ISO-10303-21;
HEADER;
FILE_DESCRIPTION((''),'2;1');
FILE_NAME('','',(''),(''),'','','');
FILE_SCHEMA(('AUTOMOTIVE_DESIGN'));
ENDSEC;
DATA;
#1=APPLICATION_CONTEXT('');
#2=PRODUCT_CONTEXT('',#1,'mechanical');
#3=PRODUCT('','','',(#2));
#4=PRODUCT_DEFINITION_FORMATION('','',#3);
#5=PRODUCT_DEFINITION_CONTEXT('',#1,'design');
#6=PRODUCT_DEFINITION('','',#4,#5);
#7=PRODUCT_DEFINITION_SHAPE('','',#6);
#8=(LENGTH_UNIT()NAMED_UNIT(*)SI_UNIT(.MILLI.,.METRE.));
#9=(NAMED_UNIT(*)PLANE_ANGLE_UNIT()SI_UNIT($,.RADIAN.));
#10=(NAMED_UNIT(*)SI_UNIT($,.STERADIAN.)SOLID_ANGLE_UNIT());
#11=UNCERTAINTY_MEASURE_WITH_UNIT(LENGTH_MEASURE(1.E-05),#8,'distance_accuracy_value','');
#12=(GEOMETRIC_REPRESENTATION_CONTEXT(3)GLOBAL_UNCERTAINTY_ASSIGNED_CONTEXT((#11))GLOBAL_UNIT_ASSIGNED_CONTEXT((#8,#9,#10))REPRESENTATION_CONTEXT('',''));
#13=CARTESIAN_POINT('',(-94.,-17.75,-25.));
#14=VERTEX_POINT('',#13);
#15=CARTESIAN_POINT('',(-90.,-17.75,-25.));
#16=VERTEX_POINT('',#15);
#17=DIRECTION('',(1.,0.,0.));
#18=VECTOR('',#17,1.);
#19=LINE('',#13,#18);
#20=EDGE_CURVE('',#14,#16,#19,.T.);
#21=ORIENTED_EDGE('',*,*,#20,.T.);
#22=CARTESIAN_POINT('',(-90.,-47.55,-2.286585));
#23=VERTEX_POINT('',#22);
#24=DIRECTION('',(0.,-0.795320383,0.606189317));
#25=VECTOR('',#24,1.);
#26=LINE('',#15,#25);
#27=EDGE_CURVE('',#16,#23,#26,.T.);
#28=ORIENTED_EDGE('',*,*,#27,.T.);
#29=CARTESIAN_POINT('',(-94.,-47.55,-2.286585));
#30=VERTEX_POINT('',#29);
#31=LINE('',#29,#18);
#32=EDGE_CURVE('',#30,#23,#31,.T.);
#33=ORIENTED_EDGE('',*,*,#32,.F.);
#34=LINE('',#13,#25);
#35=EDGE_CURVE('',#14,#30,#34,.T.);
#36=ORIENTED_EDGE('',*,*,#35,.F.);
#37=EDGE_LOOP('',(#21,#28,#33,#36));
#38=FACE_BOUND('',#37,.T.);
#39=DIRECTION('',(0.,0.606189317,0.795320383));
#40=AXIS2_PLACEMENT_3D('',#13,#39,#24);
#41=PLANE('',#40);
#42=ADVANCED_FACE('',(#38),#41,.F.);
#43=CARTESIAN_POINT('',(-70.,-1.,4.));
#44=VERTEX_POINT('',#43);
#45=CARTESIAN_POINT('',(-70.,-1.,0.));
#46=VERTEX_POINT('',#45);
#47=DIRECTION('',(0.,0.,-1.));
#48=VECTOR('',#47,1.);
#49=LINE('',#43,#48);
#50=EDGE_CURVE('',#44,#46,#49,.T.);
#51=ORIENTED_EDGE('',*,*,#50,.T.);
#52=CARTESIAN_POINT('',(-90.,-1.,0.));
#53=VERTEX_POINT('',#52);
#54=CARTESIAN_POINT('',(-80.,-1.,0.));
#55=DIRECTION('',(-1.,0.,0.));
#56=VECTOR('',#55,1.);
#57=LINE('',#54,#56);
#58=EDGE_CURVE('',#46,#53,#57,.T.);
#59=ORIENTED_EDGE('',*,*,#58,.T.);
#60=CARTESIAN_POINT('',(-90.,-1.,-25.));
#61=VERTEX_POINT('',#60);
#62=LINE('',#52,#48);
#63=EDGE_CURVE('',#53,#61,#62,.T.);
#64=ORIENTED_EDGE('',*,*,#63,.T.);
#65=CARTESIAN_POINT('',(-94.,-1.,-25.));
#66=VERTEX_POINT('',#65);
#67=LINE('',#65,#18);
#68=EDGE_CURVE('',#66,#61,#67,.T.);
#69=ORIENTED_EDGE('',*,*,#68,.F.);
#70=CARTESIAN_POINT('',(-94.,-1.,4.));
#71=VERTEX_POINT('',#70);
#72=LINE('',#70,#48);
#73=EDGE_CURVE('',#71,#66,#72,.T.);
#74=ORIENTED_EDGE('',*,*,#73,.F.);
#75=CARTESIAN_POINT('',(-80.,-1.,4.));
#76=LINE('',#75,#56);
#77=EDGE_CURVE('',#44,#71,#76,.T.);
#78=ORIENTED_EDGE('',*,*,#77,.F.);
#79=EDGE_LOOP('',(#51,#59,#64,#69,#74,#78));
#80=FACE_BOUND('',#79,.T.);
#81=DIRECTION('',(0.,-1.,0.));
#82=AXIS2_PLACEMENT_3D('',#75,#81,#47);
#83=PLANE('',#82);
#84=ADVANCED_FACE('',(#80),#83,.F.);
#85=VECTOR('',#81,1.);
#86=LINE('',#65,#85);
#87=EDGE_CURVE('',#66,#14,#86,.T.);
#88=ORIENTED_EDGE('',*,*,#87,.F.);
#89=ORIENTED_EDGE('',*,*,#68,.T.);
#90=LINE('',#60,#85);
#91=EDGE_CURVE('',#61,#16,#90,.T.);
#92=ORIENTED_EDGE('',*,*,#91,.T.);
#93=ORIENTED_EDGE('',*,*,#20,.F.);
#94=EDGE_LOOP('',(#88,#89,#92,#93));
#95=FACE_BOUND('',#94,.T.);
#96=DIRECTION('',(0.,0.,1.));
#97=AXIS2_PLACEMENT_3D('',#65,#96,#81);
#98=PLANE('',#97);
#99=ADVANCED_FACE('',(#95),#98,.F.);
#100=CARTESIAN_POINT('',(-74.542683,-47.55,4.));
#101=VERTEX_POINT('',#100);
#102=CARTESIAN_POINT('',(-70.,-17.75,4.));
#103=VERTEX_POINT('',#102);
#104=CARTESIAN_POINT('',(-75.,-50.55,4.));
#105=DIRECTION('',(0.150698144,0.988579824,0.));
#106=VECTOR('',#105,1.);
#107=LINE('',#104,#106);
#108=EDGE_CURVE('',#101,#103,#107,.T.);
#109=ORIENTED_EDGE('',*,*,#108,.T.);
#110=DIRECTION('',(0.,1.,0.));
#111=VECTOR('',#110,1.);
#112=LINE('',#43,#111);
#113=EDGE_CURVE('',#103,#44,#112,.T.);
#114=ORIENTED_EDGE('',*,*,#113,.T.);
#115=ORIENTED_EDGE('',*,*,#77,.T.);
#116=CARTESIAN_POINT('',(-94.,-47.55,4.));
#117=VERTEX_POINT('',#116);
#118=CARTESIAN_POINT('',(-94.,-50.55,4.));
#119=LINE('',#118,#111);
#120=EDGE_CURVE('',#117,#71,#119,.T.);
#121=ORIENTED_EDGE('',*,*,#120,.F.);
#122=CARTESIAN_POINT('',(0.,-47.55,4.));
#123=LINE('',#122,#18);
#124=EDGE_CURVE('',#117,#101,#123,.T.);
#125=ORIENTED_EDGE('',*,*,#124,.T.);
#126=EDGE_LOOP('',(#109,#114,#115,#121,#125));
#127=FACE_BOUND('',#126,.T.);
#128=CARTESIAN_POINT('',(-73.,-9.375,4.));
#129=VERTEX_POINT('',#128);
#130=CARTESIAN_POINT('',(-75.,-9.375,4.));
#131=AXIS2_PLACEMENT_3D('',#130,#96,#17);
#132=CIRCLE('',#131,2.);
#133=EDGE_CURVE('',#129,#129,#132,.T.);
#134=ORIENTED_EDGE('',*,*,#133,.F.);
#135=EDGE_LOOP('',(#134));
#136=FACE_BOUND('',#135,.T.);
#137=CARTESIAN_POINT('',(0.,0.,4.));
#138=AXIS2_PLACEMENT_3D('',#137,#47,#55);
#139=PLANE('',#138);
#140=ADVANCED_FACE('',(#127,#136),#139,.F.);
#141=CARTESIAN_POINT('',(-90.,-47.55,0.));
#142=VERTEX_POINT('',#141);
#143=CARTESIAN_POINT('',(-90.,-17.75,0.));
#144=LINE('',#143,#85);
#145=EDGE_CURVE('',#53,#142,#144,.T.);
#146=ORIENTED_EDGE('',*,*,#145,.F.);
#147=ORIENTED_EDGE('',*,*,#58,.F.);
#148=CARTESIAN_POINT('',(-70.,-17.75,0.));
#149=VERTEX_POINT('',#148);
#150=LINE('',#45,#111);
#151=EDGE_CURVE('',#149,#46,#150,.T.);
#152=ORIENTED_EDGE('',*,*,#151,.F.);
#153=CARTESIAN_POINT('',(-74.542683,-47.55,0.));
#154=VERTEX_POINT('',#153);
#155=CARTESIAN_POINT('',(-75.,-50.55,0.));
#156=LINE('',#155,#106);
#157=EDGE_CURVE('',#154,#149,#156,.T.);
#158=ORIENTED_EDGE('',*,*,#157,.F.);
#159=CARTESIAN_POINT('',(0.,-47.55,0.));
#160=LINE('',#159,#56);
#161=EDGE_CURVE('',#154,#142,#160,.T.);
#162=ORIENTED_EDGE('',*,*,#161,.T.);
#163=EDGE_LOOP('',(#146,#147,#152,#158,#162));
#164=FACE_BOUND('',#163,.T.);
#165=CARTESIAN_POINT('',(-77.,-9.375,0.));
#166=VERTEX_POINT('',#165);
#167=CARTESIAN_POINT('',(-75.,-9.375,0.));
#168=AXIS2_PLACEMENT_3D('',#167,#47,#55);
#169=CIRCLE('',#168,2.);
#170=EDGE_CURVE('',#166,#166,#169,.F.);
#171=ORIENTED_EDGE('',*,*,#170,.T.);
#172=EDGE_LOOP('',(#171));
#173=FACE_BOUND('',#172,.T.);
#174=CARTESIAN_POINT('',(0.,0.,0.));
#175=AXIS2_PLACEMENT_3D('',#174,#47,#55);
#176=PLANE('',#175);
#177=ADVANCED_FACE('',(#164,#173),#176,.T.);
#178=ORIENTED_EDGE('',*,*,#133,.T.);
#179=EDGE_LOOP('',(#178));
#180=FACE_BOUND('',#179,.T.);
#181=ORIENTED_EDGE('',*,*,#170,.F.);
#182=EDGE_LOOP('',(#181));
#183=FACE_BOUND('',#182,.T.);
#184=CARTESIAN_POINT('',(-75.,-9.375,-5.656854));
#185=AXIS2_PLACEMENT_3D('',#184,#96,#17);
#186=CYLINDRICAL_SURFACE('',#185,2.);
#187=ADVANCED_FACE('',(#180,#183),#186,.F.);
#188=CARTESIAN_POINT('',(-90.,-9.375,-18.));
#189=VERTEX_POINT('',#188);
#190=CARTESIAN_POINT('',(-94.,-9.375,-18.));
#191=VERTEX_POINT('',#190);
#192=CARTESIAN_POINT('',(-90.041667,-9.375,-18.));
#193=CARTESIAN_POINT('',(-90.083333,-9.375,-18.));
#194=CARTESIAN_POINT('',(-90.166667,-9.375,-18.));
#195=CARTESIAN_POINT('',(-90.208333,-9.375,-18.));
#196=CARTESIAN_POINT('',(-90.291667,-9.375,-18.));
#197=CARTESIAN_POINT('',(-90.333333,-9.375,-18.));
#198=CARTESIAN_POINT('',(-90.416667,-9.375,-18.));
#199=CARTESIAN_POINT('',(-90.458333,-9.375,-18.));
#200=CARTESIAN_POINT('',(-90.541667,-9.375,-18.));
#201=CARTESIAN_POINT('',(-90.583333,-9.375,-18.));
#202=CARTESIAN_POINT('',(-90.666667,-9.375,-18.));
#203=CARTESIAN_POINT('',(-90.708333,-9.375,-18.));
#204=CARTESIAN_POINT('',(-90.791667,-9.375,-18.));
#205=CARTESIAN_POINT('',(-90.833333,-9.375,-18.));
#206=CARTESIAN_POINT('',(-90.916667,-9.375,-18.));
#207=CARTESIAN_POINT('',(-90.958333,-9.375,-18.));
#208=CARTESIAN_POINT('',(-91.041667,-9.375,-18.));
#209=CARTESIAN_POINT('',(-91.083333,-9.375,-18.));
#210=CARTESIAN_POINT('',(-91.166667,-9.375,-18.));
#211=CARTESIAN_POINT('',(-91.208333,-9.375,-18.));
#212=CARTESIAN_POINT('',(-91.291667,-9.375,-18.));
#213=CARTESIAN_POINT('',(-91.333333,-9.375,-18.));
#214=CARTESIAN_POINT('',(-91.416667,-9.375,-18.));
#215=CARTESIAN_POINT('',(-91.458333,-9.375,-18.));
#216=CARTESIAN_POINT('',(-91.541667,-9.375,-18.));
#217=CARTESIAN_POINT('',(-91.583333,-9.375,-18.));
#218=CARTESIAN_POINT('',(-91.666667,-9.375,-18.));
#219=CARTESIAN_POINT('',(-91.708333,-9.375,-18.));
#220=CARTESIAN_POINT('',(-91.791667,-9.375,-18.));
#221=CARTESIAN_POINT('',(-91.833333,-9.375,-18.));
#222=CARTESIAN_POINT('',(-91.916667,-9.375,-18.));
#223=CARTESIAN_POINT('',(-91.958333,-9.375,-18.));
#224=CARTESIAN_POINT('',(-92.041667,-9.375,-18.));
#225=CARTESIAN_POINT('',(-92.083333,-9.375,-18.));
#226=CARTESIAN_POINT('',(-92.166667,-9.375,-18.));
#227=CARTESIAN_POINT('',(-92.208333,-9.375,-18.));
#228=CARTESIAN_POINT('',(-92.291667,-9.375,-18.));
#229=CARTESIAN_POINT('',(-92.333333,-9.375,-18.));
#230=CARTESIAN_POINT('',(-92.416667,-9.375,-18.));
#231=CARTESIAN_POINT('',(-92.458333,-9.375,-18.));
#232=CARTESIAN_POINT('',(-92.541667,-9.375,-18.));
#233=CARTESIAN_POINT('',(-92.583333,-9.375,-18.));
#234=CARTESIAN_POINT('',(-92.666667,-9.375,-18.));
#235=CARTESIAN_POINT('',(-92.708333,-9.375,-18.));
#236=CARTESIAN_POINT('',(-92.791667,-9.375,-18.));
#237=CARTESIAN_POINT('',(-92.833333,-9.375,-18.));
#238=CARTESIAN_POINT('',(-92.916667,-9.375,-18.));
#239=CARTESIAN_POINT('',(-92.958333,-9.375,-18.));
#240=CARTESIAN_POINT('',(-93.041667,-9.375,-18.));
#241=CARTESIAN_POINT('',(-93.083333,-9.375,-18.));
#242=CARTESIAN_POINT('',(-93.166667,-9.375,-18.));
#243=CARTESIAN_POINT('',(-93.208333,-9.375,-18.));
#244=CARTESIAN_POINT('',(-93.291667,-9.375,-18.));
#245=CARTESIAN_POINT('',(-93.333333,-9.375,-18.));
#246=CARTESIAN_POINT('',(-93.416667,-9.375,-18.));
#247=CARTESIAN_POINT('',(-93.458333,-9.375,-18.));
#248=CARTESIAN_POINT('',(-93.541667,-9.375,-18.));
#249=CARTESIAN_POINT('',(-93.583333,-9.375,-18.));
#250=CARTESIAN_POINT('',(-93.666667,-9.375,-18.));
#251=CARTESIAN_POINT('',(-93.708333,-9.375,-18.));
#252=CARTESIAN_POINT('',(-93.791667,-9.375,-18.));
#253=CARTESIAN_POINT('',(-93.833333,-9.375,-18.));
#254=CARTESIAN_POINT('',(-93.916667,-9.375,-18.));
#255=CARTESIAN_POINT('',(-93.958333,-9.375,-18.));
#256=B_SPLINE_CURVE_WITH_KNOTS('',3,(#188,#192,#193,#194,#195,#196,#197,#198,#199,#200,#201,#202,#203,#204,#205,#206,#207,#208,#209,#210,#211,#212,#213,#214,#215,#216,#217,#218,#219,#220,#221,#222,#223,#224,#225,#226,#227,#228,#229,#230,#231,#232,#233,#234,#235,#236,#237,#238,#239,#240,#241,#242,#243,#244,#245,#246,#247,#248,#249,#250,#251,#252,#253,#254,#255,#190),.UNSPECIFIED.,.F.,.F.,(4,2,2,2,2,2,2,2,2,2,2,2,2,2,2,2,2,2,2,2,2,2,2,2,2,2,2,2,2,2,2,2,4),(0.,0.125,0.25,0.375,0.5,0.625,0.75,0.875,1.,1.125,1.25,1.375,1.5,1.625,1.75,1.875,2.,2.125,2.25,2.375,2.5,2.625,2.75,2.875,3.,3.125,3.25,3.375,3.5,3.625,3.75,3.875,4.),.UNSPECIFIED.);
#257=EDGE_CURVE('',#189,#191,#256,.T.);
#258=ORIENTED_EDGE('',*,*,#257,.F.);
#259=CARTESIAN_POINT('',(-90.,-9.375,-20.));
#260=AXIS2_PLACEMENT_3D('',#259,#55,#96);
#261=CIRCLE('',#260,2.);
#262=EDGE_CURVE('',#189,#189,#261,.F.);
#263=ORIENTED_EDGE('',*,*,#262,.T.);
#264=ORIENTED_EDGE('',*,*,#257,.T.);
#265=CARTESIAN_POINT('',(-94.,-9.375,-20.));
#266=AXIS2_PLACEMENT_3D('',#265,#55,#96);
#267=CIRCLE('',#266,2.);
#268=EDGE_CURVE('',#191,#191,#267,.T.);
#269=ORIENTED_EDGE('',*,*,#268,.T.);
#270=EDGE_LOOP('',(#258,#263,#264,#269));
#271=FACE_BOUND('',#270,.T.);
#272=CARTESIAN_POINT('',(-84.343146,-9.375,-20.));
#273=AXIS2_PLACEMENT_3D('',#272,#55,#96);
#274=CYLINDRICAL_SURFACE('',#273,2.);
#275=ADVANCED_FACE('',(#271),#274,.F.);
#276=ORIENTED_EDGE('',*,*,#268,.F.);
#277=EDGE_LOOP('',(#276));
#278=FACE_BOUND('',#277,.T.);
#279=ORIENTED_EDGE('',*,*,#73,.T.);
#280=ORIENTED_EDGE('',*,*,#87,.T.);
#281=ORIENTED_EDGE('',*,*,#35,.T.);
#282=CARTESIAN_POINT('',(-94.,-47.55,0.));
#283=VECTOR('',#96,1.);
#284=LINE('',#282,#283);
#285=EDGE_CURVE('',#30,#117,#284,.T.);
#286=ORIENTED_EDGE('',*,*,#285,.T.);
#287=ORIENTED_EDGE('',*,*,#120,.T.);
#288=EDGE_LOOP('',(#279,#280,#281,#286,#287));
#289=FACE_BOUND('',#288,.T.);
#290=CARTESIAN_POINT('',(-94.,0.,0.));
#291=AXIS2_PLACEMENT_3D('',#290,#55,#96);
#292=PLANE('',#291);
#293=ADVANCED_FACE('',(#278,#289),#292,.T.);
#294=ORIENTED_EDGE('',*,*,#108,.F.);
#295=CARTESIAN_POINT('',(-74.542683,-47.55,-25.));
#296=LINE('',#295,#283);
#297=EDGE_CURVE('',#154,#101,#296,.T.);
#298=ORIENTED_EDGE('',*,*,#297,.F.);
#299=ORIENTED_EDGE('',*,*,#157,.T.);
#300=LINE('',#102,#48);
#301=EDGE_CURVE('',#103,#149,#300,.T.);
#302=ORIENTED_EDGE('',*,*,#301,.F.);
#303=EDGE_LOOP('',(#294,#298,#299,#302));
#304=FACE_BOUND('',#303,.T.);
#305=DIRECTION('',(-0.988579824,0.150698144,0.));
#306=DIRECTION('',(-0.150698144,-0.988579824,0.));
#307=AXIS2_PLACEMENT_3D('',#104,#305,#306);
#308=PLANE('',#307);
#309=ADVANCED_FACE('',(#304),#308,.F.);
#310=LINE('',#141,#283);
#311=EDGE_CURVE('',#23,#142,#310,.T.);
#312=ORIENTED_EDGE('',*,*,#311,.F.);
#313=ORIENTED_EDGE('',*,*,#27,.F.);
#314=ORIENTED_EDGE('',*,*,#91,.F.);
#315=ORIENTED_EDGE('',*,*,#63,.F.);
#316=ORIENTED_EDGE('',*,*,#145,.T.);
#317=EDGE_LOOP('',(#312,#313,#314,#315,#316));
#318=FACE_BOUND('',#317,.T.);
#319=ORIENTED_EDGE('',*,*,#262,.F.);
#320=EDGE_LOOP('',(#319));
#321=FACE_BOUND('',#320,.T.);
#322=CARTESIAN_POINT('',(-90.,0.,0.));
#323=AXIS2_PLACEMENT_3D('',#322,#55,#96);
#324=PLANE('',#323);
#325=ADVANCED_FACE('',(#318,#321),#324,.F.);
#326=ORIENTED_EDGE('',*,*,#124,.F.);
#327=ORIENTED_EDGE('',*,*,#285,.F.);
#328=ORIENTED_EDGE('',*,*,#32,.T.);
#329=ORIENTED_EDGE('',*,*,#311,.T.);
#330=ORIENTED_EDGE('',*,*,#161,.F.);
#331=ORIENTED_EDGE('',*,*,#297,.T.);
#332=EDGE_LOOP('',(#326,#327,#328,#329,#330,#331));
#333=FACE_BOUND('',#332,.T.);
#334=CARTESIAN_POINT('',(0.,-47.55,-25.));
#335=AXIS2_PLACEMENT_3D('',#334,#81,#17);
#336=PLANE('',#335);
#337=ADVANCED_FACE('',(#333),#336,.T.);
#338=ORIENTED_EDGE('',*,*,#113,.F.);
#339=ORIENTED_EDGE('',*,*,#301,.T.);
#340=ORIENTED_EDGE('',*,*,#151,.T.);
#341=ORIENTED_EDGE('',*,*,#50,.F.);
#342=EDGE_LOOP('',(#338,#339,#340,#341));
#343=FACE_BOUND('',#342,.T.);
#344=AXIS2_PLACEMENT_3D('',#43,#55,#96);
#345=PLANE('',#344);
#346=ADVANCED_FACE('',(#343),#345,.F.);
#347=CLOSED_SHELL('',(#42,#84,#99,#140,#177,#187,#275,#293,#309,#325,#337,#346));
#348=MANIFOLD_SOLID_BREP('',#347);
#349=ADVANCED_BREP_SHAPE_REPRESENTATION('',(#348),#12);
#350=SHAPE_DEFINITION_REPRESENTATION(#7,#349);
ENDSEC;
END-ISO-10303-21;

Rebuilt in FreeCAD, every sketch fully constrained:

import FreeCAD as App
import Part
import Sketcher
Q = App.Units.Quantity


def add_polygon(sketch, points):
    """Adds a closed chain of lines whose ends are joined by coincident constraints."""
    first, n = sketch.GeometryCount, len(points)
    for a, b in zip(points, points[1:] + points[:1]):
        sketch.addGeometry(Part.LineSegment(App.Vector(*a, 0), App.Vector(*b, 0)), False)
    for i in range(n):
        sketch.addConstraint(Sketcher.Constraint("Coincident", first + i, 2, first + (i + 1) % n, 1))

doc = App.newDocument("Part")
body = doc.addObject("PartDesign::Body", "Body")

sketch1 = body.newObject("Sketcher::SketchObject", "Sketch")
sketch1.AttachmentSupport = (doc.getObject("XY_Plane"), [""])
sketch1.MapMode = "FlatFace"
add_polygon(sketch1, [(-90, -50.55), (-75, -50.55), (-70, -17.75), (-70, -1), (-90, -1)])
sketch1.addConstraint(Sketcher.Constraint("Horizontal", 0))
sketch1.addConstraint(Sketcher.Constraint("Vertical", 2))
sketch1.addConstraint(Sketcher.Constraint("Horizontal", 3))
sketch1.addConstraint(Sketcher.Constraint("Vertical", 4))
sketch1.addConstraint(Sketcher.Constraint("DistanceX", 0, 1, 0, 2, Q("15 mm")))
sketch1.addConstraint(Sketcher.Constraint("DistanceX", 3, 2, 3, 1, Q("20 mm")))
sketch1.addConstraint(Sketcher.Constraint("DistanceX", 0, 2, -1, 1, Q("75 mm")))
sketch1.addConstraint(Sketcher.Constraint("DistanceY", 2, 2, -1, 1, Q("1 mm")))
sketch1.addConstraint(Sketcher.Constraint("DistanceY", 2, 1, 2, 2, Q("16.75 mm")))
sketch1.addConstraint(Sketcher.Constraint("DistanceY", 4, 2, 4, 1, Q("49.55 mm")))
pad1 = body.newObject("PartDesign::Pad", "Pad")
pad1.Profile = sketch1
pad1.Length = 4

sketch2 = body.newObject("Sketcher::SketchObject", "Sketch001")
sketch2.AttachmentSupport = (doc.getObject("YZ_Plane"), [""])
sketch2.MapMode = "FlatFace"
sketch2.AttachmentOffset = App.Placement(App.Vector(0, 0, -90), App.Rotation())
add_polygon(sketch2, [(-1, -25), (-17.75, -25), (-50.55, 0), (-50.55, 4), (-1, 4)])
sketch2.addConstraint(Sketcher.Constraint("Horizontal", 0))
sketch2.addConstraint(Sketcher.Constraint("Vertical", 2))
sketch2.addConstraint(Sketcher.Constraint("Horizontal", 3))
sketch2.addConstraint(Sketcher.Constraint("Vertical", 4))
sketch2.addConstraint(Sketcher.Constraint("PointOnObject", 1, 2, -1))
sketch2.addConstraint(Sketcher.Constraint("DistanceY", 2, 1, 2, 2, Q("4 mm")))
sketch2.addConstraint(Sketcher.Constraint("DistanceY", 4, 2, 4, 1, Q("29 mm")))
sketch2.addConstraint(Sketcher.Constraint("DistanceX", 3, 2, -1, 1, Q("1 mm")))
sketch2.addConstraint(Sketcher.Constraint("DistanceX", 0, 2, 0, 1, Q("16.75 mm")))
sketch2.addConstraint(Sketcher.Constraint("DistanceX", 3, 1, 3, 2, Q("49.55 mm")))
pad2 = body.newObject("PartDesign::Pad", "Pad001")
pad2.Profile = sketch2
pad2.Length = 4
pad2.Reversed = True

sketch3 = body.newObject("Sketcher::SketchObject", "Sketch002")
sketch3.AttachmentSupport = (doc.getObject("XY_Plane"), [""])
sketch3.MapMode = "FlatFace"
sketch3.AttachmentOffset = App.Placement(App.Vector(0, 0, 4), App.Rotation())
add_polygon(sketch3, [(-94, -50.55), (-75, -50.55), (-74.542683, -47.55), (-94, -47.55)])
sketch3.addConstraint(Sketcher.Constraint("Horizontal", 0))
sketch3.addConstraint(Sketcher.Constraint("Horizontal", 2))
sketch3.addConstraint(Sketcher.Constraint("Vertical", 3))
sketch3.addConstraint(Sketcher.Constraint("DistanceX", 0, 1, 0, 2, Q("19 mm")))
sketch3.addConstraint(Sketcher.Constraint("DistanceY", 3, 2, 3, 1, Q("3 mm")))
sketch3.addConstraint(Sketcher.Constraint("DistanceX", 0, 2, -1, 1, Q("75 mm")))
sketch3.addConstraint(Sketcher.Constraint("DistanceY", 0, 2, -1, 1, Q("50.55 mm")))
sketch3.addConstraint(Sketcher.Constraint("DistanceX", 2, 2, 2, 1, Q("19.457317 mm")))
pocket1 = body.newObject("PartDesign::Pocket", "Pocket")
pocket1.Profile = sketch3
pocket1.Type = "ThroughAll"

sketch4 = body.newObject("Sketcher::SketchObject", "Sketch003")
sketch4.AttachmentSupport = (doc.getObject("XY_Plane"), [""])
sketch4.MapMode = "FlatFace"
sketch4.AttachmentOffset = App.Placement(App.Vector(0, 0, 4), App.Rotation())
sketch4.addGeometry(Part.Circle(App.Vector(-75, -9.375, 0), App.Vector(0, 0, 1), 2), False)
sketch4.addConstraint(Sketcher.Constraint("Diameter", 0, Q("4 mm")))
sketch4.addConstraint(Sketcher.Constraint("DistanceX", 0, 3, -1, 1, Q("75 mm")))
sketch4.addConstraint(Sketcher.Constraint("DistanceY", 0, 3, -1, 1, Q("9.375 mm")))
pocket2 = body.newObject("PartDesign::Pocket", "Pocket001")
pocket2.Profile = sketch4
pocket2.Length = 4

sketch5 = body.newObject("Sketcher::SketchObject", "Sketch004")
sketch5.AttachmentSupport = (doc.getObject("YZ_Plane"), [""])
sketch5.MapMode = "FlatFace"
sketch5.AttachmentOffset = App.Placement(App.Vector(0, 0, -94), App.Rotation())
sketch5.addGeometry(Part.Circle(App.Vector(-9.375, -20, 0), App.Vector(0, 0, 1), 2), False)
sketch5.addConstraint(Sketcher.Constraint("Diameter", 0, Q("4 mm")))
sketch5.addConstraint(Sketcher.Constraint("DistanceY", 0, 3, -1, 1, Q("20 mm")))
sketch5.addConstraint(Sketcher.Constraint("DistanceX", 0, 3, -1, 1, Q("9.375 mm")))
pocket3 = body.newObject("PartDesign::Pocket", "Pocket002")
pocket3.Profile = sketch5
pocket3.Length = 4
pocket3.Reversed = True

doc.recompute()
